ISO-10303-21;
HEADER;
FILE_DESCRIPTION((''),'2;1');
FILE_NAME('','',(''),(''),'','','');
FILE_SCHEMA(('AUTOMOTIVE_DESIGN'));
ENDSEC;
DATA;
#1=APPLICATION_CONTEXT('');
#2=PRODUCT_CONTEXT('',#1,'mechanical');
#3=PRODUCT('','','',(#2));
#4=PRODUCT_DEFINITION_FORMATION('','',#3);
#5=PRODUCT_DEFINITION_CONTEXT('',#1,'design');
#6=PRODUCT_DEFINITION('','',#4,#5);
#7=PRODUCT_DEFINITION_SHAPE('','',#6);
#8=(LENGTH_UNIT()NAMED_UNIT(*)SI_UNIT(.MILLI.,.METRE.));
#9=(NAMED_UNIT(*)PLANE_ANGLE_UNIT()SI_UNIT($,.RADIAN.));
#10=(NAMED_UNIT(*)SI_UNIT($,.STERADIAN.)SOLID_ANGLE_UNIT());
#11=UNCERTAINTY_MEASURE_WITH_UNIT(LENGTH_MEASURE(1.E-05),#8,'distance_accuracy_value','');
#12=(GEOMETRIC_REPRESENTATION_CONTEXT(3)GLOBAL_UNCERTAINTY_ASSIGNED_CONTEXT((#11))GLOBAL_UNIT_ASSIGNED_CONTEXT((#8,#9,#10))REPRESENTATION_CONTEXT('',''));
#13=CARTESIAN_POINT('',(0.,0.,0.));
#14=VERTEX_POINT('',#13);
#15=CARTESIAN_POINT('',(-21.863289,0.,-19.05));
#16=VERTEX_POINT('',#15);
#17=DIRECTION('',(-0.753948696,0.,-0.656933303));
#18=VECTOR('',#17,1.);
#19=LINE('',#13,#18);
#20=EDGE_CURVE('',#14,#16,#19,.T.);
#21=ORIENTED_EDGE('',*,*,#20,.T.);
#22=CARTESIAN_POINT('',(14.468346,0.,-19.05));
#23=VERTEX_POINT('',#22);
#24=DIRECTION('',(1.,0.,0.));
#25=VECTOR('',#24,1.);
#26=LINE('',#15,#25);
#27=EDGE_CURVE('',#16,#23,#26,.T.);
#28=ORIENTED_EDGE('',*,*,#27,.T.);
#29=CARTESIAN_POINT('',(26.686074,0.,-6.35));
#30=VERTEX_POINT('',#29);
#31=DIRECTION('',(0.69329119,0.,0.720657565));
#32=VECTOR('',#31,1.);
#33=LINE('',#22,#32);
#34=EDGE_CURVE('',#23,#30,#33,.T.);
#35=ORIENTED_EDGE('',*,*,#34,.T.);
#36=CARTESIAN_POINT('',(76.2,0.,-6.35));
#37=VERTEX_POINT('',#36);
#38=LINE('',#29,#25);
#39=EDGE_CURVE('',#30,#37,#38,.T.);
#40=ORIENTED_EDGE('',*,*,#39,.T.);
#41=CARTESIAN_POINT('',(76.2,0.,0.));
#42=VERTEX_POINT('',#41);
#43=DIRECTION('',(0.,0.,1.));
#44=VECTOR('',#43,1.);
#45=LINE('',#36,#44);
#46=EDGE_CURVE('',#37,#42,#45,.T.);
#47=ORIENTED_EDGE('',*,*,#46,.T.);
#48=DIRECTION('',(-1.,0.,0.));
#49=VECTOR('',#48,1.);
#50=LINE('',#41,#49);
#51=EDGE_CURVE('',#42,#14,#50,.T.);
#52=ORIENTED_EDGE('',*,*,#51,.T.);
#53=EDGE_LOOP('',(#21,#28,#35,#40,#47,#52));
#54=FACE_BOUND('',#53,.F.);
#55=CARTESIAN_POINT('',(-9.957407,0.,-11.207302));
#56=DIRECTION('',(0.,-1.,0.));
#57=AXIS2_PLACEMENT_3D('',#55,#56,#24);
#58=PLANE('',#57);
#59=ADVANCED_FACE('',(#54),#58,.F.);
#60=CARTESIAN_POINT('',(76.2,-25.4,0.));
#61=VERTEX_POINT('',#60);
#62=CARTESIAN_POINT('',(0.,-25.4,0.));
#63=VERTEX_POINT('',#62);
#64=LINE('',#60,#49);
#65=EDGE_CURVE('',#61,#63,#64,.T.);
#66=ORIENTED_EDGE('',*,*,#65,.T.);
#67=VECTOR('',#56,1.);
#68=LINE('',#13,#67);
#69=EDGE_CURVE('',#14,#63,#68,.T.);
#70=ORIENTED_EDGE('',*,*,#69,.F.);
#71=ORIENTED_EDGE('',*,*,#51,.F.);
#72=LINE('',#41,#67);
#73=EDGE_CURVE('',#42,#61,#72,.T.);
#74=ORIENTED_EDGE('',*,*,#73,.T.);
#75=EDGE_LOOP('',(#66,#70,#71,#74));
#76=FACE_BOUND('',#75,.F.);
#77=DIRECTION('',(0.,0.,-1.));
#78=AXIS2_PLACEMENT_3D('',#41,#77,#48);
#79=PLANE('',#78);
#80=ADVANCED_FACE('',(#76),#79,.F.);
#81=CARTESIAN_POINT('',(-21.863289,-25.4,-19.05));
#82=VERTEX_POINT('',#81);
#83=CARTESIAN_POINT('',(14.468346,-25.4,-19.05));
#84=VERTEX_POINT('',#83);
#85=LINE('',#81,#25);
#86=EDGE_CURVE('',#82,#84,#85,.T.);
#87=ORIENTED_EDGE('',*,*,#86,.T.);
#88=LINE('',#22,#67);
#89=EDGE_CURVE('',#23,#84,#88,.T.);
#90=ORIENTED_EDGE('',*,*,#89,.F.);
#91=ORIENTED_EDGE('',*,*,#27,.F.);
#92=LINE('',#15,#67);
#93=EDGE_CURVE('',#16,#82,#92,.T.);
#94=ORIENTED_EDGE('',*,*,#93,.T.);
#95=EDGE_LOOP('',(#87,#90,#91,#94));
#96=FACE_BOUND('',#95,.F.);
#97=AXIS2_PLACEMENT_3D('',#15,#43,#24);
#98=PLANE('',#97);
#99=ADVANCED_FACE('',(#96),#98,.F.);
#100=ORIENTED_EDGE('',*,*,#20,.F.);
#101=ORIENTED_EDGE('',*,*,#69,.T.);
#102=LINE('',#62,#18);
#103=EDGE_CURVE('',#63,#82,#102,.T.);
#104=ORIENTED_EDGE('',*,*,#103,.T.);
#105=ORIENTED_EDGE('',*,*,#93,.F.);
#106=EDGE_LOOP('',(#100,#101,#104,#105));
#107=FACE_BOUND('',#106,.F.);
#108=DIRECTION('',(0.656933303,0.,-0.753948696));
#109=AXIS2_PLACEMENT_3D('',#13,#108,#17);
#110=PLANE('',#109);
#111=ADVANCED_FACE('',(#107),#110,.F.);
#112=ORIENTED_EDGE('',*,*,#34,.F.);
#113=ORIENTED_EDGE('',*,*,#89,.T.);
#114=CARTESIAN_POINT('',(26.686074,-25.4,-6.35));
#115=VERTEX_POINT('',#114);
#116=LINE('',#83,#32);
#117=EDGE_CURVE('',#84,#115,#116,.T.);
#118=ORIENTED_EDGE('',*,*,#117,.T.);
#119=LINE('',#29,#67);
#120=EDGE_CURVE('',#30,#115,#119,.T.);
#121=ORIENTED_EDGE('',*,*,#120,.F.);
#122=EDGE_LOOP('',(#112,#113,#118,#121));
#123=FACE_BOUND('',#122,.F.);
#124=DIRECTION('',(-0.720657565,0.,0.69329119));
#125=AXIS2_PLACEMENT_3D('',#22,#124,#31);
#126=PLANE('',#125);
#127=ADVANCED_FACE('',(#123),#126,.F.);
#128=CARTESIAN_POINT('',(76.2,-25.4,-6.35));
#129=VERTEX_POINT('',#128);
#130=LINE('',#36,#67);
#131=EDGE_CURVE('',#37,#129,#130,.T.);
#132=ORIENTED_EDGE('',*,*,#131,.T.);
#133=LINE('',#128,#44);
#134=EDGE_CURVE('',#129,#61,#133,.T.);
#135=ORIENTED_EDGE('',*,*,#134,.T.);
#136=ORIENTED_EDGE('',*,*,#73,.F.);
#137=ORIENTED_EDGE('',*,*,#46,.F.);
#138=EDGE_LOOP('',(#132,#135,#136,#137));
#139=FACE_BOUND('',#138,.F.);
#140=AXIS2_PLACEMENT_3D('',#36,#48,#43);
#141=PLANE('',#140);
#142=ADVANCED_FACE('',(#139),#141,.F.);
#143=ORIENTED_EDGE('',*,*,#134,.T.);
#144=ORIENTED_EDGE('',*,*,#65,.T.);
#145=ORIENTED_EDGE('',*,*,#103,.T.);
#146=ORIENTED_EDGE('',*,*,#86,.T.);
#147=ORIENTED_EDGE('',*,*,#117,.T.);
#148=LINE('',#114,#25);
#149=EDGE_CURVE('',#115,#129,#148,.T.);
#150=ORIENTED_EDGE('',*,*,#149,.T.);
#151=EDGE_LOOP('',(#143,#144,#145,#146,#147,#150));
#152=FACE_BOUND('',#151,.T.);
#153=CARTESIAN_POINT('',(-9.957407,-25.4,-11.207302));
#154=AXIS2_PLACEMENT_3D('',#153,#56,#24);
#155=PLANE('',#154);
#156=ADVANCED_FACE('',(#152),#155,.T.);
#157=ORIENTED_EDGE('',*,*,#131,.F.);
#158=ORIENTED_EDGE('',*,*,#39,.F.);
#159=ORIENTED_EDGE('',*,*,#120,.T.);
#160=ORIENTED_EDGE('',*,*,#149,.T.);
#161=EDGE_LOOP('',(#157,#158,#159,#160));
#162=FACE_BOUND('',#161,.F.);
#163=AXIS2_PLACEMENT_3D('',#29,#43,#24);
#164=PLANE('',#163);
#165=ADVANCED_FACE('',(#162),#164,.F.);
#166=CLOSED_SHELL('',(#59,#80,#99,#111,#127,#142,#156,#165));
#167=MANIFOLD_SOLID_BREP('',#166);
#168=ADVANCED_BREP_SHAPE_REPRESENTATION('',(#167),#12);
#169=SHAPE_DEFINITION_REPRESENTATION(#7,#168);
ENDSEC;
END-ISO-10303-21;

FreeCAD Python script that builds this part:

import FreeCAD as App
import Part
import Sketcher
from FreeCAD import Vector
Q = App.Units.Quantity

doc = App.newDocument("Part")
body = doc.addObject("PartDesign::Body", "Body")

# Sketch on XZ plane
sketch1 = doc.addObject("Sketcher::SketchObject", "Sketch")
body.addObject(sketch1)
sketch1.AttachmentSupport = (doc.XZ_Plane, [""])
sketch1.MapMode = "FlatFace"
sketch1.addGeometry([
    Part.LineSegment(Vector(0, 0, 0), Vector(-22, -19, 0)),  # 0
    Part.LineSegment(Vector(-22, -19, 0), Vector(14, -19, 0)),  # 1
    Part.LineSegment(Vector(14, -19, 0), Vector(27, -6, 0)),  # 2
    Part.LineSegment(Vector(27, -6, 0), Vector(76, -6, 0)),  # 3
    Part.LineSegment(Vector(76, -6, 0), Vector(76, 0, 0)),  # 4
    Part.LineSegment(Vector(76, 0, 0), Vector(0, 0, 0)),  # 5
], False)
sketch1.addConstraint([
    Sketcher.Constraint("Coincident", 0, 2, 1, 1),
    Sketcher.Constraint("Coincident", 1, 2, 2, 1),
    Sketcher.Constraint("Coincident", 2, 2, 3, 1),
    Sketcher.Constraint("Coincident", 3, 2, 4, 1),
    Sketcher.Constraint("Coincident", 4, 2, 5, 1),
    Sketcher.Constraint("Coincident", 5, 2, 0, 1),
    Sketcher.Constraint("Horizontal", 1),
    Sketcher.Constraint("Horizontal", 3),
    Sketcher.Constraint("Vertical", 4),
    Sketcher.Constraint("Horizontal", 5),
    Sketcher.Constraint("Coincident", 5, 2, -1, 1),
    Sketcher.Constraint("DistanceX", 5, 2, 5, 1, Q("3 in")),
    Sketcher.Constraint("DistanceY", 4, 1, 4, 2, Q("0.25 in")),
    Sketcher.Constraint("DistanceY", 1, 2, 2, 2, Q("0.5 in")),
    Sketcher.Constraint("DistanceX", 1, 1, 1, 2, 36.331635),
    Sketcher.Constraint("DistanceX", 3, 1, 3, 2, 49.513926),
    Sketcher.Constraint("DistanceX", 0, 2, -1, 1, 21.863289),
])
pad1 = doc.addObject("PartDesign::Pad", "Pad")
body.addObject(pad1)
pad1.Profile = sketch1
pad1.Length = Q("1 in")

doc.recompute()
